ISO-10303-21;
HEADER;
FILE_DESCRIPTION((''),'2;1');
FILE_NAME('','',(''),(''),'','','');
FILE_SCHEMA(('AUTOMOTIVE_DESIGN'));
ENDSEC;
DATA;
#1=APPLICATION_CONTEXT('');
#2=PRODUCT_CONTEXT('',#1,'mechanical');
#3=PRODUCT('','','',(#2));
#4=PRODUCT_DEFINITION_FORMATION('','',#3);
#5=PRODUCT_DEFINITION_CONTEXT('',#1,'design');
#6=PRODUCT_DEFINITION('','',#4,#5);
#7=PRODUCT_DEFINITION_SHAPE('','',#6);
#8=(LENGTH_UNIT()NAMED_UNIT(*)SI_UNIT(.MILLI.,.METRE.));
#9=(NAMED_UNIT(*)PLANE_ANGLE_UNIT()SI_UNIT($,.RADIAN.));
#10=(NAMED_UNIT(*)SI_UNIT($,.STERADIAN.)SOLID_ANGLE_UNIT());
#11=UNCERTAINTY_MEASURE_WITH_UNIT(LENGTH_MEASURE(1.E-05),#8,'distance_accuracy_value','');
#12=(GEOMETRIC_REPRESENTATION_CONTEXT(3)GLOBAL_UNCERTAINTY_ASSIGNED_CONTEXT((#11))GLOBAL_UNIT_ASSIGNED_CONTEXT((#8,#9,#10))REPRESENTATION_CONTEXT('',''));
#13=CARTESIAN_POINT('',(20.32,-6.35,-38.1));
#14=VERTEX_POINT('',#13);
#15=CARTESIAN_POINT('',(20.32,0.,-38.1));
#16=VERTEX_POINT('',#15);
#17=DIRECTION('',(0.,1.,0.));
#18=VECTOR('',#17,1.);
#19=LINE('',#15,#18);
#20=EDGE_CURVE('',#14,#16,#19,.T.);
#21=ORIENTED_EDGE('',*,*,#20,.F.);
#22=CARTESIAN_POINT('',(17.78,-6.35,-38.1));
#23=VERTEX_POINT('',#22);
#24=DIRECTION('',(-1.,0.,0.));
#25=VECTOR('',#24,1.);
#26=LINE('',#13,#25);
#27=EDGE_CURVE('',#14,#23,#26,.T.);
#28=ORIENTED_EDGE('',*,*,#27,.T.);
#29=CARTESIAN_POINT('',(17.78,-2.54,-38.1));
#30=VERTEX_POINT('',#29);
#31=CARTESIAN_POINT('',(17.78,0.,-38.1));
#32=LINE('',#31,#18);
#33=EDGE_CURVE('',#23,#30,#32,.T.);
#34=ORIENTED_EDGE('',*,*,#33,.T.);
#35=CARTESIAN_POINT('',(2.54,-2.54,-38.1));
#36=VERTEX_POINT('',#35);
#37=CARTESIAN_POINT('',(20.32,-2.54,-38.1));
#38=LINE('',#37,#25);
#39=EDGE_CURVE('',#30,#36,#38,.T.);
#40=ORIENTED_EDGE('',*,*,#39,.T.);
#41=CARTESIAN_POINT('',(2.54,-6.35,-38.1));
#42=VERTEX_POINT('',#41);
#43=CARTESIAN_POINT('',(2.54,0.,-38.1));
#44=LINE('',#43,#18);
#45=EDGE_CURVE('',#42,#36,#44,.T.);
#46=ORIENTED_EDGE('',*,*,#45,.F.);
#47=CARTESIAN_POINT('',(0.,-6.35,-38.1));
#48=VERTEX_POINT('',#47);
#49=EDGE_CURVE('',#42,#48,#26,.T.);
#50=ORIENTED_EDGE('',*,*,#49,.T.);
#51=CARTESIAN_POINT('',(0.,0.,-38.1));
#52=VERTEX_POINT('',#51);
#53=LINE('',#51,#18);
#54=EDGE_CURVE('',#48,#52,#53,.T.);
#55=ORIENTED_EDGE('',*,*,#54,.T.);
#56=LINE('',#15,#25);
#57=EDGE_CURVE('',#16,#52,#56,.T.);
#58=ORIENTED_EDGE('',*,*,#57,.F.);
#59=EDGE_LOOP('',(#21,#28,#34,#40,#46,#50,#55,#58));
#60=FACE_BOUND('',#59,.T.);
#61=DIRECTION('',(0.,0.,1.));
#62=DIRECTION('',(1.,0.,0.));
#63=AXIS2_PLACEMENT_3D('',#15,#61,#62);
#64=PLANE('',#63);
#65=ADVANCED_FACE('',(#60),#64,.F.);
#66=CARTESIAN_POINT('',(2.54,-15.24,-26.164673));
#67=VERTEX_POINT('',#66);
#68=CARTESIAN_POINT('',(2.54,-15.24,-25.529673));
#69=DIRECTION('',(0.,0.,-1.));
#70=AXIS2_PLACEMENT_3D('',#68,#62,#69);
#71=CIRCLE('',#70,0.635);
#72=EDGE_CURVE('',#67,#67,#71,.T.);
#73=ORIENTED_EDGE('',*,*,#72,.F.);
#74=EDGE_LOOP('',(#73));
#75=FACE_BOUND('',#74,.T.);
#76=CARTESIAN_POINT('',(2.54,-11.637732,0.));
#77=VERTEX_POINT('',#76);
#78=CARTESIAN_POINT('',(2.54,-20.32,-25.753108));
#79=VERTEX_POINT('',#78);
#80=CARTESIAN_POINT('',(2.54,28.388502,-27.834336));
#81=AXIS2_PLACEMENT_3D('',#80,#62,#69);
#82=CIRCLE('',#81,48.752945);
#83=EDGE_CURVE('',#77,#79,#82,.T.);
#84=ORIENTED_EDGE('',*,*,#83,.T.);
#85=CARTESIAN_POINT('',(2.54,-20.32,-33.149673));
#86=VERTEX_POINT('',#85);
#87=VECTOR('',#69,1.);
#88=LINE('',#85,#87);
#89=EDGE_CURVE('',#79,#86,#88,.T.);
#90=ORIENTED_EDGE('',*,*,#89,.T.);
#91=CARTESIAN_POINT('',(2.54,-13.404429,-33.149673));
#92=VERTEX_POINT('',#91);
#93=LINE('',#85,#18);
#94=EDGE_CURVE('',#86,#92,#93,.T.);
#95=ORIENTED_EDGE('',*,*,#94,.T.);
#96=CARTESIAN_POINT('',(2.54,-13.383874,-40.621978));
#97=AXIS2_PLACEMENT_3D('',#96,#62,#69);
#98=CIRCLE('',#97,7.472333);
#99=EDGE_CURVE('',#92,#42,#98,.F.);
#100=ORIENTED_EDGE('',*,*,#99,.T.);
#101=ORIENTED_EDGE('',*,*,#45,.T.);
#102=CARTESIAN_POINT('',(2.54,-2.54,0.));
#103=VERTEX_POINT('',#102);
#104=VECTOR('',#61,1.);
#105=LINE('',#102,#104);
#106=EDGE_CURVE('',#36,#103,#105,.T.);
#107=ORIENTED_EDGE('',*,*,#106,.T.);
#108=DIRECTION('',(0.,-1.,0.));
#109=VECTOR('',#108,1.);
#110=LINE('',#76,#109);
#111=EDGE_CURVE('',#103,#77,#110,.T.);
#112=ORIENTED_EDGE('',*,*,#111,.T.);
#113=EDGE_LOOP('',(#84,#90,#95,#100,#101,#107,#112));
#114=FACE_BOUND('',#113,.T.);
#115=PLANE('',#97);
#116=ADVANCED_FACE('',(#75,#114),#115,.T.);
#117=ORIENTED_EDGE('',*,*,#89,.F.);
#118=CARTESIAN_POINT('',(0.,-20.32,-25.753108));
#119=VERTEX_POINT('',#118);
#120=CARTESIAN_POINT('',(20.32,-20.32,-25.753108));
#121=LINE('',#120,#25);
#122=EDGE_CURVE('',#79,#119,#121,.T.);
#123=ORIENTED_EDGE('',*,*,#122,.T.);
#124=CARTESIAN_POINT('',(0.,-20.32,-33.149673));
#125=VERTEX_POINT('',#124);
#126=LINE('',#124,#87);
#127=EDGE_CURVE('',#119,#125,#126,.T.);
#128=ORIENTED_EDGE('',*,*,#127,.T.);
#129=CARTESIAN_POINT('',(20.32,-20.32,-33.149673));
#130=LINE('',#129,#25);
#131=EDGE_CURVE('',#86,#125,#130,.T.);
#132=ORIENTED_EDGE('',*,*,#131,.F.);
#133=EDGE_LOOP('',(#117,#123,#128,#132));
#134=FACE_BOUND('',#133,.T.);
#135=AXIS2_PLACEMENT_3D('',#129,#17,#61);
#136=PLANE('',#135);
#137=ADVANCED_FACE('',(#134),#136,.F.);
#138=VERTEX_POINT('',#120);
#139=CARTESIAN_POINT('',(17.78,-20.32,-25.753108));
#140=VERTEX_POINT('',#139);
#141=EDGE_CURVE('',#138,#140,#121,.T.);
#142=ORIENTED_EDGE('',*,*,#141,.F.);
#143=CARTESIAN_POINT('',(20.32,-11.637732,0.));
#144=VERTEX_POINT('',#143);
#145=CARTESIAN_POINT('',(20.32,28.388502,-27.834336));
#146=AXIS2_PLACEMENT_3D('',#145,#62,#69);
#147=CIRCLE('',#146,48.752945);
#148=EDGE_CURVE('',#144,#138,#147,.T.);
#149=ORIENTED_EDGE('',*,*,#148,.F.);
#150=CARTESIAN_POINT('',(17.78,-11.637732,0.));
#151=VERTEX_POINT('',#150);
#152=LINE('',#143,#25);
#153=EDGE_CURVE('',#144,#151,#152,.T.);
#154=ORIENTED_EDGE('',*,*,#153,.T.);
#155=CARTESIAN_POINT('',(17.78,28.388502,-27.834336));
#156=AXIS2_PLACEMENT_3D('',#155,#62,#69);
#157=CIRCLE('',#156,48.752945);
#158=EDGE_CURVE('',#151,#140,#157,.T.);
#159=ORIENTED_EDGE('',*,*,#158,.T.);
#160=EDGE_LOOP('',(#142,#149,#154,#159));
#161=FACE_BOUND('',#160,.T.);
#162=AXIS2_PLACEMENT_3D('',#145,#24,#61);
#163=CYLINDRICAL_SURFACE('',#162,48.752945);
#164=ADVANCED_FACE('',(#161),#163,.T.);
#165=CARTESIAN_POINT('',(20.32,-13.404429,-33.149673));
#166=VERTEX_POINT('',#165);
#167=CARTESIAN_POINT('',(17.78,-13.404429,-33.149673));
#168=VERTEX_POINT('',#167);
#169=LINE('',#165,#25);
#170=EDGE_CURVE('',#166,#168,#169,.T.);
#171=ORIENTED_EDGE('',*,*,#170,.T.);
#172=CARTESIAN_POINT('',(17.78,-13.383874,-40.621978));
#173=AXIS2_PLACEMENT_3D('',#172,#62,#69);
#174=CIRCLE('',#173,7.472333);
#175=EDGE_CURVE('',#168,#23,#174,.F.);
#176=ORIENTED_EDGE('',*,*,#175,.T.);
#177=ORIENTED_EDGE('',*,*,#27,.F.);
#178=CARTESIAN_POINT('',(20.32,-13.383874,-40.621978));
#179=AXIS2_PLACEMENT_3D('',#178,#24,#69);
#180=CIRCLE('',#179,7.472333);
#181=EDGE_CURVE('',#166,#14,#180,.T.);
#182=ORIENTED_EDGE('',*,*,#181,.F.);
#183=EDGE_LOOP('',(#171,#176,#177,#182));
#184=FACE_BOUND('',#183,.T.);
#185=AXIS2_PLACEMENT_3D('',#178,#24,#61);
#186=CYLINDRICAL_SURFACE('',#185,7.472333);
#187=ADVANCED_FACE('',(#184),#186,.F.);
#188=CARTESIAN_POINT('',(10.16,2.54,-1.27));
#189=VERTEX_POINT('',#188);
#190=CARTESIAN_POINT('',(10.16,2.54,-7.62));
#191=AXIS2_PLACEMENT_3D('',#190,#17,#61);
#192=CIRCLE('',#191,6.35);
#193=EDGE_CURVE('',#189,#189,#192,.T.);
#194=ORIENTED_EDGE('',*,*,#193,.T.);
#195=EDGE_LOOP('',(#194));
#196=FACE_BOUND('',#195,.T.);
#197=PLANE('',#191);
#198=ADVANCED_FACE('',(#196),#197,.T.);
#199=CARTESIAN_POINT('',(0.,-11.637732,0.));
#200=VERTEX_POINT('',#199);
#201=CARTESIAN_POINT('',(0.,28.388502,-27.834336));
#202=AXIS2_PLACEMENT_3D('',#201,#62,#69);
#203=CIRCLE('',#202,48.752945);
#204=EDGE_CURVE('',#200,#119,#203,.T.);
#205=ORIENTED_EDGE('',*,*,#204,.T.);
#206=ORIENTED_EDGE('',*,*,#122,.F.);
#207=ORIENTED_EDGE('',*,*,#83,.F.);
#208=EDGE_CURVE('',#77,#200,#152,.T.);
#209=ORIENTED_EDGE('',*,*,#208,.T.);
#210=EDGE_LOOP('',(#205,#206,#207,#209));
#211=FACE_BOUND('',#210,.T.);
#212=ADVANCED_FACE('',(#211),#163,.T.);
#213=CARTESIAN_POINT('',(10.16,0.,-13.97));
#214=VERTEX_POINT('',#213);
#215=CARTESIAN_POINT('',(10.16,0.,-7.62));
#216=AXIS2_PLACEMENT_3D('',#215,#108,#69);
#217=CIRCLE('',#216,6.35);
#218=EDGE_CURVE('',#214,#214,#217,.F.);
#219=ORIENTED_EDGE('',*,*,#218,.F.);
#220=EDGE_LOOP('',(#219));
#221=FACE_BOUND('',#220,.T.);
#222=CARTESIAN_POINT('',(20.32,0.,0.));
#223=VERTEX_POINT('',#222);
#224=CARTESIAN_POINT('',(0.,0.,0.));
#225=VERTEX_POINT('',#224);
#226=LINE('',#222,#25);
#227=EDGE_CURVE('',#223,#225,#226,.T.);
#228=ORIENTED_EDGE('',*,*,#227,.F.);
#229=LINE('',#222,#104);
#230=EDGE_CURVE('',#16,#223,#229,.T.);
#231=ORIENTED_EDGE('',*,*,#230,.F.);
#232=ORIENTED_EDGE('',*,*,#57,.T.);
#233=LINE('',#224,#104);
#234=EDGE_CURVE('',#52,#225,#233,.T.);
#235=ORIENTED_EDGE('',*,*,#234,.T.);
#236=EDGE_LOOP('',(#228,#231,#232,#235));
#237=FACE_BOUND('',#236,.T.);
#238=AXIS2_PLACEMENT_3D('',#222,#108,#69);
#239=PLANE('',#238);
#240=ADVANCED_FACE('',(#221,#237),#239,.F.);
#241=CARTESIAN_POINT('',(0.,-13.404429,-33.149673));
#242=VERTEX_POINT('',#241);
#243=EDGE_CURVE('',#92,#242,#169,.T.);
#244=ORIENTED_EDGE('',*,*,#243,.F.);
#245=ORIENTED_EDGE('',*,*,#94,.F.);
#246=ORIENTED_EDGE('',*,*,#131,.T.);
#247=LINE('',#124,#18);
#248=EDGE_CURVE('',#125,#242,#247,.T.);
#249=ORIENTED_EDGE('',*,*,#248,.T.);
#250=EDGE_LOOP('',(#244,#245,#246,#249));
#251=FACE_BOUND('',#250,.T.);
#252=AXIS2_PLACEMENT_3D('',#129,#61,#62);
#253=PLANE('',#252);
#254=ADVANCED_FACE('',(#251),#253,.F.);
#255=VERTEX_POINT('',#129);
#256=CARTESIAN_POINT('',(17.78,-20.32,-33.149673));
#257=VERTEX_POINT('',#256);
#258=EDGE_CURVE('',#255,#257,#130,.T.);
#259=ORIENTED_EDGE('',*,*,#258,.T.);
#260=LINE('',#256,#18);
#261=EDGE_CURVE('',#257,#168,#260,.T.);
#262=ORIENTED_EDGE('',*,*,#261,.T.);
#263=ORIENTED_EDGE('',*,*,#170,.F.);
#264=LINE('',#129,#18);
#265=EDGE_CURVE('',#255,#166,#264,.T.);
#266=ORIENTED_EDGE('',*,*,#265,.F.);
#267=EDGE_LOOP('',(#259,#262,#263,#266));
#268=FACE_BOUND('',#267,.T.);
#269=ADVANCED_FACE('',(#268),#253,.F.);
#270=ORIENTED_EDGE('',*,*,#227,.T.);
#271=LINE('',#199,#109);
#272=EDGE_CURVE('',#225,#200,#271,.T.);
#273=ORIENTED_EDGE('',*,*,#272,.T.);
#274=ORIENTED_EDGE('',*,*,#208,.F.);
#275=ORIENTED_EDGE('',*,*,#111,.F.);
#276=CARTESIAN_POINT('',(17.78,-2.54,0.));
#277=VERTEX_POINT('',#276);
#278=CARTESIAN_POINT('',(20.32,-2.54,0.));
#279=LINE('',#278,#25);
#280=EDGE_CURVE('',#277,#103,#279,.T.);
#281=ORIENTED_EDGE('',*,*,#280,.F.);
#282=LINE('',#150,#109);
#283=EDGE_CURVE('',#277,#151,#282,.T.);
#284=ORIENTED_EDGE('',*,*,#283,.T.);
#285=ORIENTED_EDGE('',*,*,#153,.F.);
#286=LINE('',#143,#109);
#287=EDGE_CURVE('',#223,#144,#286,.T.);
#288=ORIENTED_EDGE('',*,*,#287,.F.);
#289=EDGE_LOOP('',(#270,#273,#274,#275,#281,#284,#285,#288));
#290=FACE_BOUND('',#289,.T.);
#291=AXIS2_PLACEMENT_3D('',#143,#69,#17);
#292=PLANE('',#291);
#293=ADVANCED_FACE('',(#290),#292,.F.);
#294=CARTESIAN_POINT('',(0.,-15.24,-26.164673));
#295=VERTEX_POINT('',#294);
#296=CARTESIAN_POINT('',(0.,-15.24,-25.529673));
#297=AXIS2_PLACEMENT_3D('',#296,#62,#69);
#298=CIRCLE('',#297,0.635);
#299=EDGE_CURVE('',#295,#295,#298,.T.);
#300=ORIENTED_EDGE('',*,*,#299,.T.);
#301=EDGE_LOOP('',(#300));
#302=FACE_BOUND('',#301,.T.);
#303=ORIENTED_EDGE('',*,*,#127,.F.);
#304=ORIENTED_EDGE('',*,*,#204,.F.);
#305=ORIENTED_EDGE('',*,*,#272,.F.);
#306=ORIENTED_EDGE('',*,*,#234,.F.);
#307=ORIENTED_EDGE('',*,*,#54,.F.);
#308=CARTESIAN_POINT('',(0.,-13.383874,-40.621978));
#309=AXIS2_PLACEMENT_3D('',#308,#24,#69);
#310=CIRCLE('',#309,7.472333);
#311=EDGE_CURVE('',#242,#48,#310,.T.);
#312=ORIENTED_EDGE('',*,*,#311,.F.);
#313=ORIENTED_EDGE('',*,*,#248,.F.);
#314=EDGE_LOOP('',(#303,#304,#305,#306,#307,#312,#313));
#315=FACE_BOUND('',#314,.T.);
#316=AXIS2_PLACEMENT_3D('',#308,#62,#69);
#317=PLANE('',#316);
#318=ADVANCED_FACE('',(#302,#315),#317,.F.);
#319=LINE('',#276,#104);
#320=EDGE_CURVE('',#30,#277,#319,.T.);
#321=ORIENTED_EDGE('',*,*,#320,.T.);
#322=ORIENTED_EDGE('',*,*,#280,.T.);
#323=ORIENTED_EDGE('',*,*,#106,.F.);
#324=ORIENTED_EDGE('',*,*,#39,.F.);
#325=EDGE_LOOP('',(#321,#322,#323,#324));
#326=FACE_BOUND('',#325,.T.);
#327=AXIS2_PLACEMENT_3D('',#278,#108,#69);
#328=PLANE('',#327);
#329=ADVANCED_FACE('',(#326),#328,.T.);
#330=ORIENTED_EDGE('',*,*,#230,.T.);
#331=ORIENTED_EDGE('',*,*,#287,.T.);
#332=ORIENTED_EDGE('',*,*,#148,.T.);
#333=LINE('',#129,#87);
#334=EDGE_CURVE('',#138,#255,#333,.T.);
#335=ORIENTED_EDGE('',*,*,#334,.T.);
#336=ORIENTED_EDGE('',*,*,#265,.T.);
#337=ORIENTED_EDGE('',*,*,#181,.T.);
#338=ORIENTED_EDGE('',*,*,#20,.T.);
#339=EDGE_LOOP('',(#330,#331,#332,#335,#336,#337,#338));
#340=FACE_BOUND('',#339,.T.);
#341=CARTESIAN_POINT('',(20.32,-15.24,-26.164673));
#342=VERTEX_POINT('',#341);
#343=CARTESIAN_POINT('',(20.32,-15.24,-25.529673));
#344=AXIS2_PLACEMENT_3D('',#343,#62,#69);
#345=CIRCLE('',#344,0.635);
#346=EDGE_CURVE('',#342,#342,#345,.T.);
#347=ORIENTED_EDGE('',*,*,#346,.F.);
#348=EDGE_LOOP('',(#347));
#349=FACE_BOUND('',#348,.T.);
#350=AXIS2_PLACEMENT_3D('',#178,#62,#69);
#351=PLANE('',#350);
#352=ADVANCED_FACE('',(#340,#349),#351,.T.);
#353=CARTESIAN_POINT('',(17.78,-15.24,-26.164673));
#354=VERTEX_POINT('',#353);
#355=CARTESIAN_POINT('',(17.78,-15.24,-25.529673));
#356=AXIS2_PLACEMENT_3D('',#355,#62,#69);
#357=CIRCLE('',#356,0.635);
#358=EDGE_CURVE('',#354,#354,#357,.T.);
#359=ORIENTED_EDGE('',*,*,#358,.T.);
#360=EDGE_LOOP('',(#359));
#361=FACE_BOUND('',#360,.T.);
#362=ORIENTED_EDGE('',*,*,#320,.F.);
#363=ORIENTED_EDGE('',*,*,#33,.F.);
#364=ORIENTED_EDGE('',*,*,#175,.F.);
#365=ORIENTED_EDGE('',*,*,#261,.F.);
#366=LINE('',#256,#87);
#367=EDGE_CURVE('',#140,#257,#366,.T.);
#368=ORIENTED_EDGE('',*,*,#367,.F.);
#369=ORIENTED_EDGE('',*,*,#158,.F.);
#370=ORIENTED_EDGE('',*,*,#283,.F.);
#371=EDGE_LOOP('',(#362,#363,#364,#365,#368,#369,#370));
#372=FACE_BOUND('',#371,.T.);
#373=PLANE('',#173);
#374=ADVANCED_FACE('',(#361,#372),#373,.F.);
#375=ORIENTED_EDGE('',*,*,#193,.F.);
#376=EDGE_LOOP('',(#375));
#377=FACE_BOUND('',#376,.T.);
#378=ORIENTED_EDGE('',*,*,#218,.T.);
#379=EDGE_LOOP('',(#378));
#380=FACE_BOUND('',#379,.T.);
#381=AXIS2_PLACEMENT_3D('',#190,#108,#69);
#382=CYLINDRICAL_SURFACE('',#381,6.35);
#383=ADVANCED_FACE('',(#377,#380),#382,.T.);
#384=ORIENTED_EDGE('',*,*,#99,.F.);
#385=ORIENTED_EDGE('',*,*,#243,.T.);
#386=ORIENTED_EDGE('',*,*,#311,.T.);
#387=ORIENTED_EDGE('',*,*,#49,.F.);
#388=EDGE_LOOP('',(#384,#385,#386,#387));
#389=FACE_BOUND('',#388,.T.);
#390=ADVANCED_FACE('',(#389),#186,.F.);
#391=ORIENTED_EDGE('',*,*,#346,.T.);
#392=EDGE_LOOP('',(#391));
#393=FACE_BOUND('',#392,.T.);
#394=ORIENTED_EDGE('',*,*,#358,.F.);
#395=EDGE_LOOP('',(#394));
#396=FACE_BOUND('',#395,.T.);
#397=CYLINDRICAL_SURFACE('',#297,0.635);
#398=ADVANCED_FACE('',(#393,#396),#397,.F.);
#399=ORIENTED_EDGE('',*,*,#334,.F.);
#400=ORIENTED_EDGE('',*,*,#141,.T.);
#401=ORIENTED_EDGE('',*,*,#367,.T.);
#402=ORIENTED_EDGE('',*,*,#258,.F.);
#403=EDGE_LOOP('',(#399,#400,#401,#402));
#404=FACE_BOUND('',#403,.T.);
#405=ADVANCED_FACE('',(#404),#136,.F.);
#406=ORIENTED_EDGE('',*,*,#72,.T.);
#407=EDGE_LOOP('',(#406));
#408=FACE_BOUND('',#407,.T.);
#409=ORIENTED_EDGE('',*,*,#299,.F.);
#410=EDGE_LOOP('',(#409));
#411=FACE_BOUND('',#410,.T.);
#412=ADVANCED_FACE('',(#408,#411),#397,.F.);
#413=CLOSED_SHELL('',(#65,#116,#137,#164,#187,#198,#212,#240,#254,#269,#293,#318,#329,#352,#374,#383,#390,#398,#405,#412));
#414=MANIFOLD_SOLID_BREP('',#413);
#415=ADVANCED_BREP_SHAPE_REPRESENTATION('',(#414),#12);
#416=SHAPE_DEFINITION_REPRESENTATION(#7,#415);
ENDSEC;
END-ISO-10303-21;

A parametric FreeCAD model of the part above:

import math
import FreeCAD as App
import Part
import Sketcher
Q = App.Units.Quantity


def faces_at(feature, points):
    """Names of the faces that lie closest to the given points."""
    faces = feature.Shape.Faces
    near = lambda p: min(range(len(faces)), key=lambda i: faces[i].distToShape(Part.Vertex(*p))[0])
    return sorted({f"Face{near(p) + 1}" for p in points})

doc = App.newDocument("Part")
body = doc.addObject("PartDesign::Body", "Body")

sketch1 = body.newObject("Sketcher::SketchObject", "Sketch")
sketch1.AttachmentSupport = (doc.getObject("YZ_Plane"), [""])
sketch1.MapMode = "FlatFace"
sketch1.addGeometry(Part.LineSegment(App.Vector(0, -38, 0), App.Vector(0, 0, 0)), False)
sketch1.addGeometry(Part.LineSegment(App.Vector(0, 0, 0), App.Vector(-12, 0, 0)), False)
sketch1.addGeometry(Part.ArcOfCircle(Part.Circle(App.Vector(28, -28, 0), App.Vector(0, 0, 1), 49), math.radians(145), math.radians(178)), False)
sketch1.addGeometry(Part.LineSegment(App.Vector(-20, -26, 0), App.Vector(-20, -33, 0)), False)
sketch1.addGeometry(Part.LineSegment(App.Vector(-20, -33, 0), App.Vector(-13, -33, 0)), False)
sketch1.addGeometry(Part.ArcOfCircle(Part.Circle(App.Vector(-13, -41, 0), App.Vector(0, 0, 1), 7), math.radians(20), math.radians(90)), False)
sketch1.addGeometry(Part.LineSegment(App.Vector(-6, -38, 0), App.Vector(0, -38, 0)), False)
sketch1.addConstraint(Sketcher.Constraint("Coincident", 0, 2, 1, 1))
sketch1.addConstraint(Sketcher.Constraint("Coincident", 1, 2, 2, 1))
sketch1.addConstraint(Sketcher.Constraint("Coincident", 2, 2, 3, 1))
sketch1.addConstraint(Sketcher.Constraint("Coincident", 3, 2, 4, 1))
sketch1.addConstraint(Sketcher.Constraint("Coincident", 4, 2, 5, 2))
sketch1.addConstraint(Sketcher.Constraint("Coincident", 5, 1, 6, 1))
sketch1.addConstraint(Sketcher.Constraint("Coincident", 6, 2, 0, 1))
sketch1.addConstraint(Sketcher.Constraint("Vertical", 0))
sketch1.addConstraint(Sketcher.Constraint("Horizontal", 1))
sketch1.addConstraint(Sketcher.Constraint("Vertical", 3))
sketch1.addConstraint(Sketcher.Constraint("Horizontal", 4))
sketch1.addConstraint(Sketcher.Constraint("Horizontal", 6))
sketch1.addConstraint(Sketcher.Constraint("Coincident", 0, 2, -1, 1))
sketch1.addConstraint(Sketcher.Constraint("DistanceY", 0, 1, 0, 2, Q("1.5 in")))
sketch1.addConstraint(Sketcher.Constraint("DistanceX", 6, 1, 6, 2, Q("0.25 in")))
sketch1.addConstraint(Sketcher.Constraint("DistanceX", 2, 2, -1, 1, Q("0.8 in")))
sketch1.addConstraint(Sketcher.Constraint("Radius", 2, 48.752945))
sketch1.addConstraint(Sketcher.Constraint("Radius", 5, 7.472333))
sketch1.addConstraint(Sketcher.Constraint("DistanceX", 4, 1, 4, 2, 6.915571))
sketch1.addConstraint(Sketcher.Constraint("DistanceX", -1, 1, 2, 3, 28.388502))
sketch1.addConstraint(Sketcher.Constraint("DistanceX", 1, 2, 1, 1, 11.637732))
sketch1.addConstraint(Sketcher.Constraint("DistanceY", 3, 2, 3, 1, 7.396565))
pad1 = body.newObject("PartDesign::Pad", "Pad")
pad1.Profile = sketch1
pad1.Length = Q("0.8 in")
doc.recompute()

thickness = body.newObject("PartDesign::Thickness", "Thickness")
thickness.Base = (pad1, faces_at(pad1, [
    (10.16, -3.175, -38.1),
    (10.16, -9.092, -34.505),
    (10.16, -16.862, -33.15),
    (10.16, -20.32, -29.451),
    (10.16, -17.81, -12.259),
    (10.16, -5.819, 0),
]))
thickness.Value = Q("0.1 in")
thickness.Reversed = True
thickness.Join = "Intersection"

sketch2 = body.newObject("Sketcher::SketchObject", "Sketch001")
sketch2.AttachmentSupport = (doc.getObject("XZ_Plane"), [""])
sketch2.MapMode = "FlatFace"
sketch2.addGeometry(Part.Circle(App.Vector(10, -8, 0), App.Vector(0, 0, 1), 6), False)
sketch2.addConstraint(Sketcher.Constraint("Diameter", 0, Q("0.5 in")))
sketch2.addConstraint(Sketcher.Constraint("DistanceX", -1, 1, 0, 3, Q("0.4 in")))
sketch2.addConstraint(Sketcher.Constraint("DistanceY", 0, 3, -1, 1, Q("0.3 in")))
pad2 = body.newObject("PartDesign::Pad", "Pad001")
pad2.Profile = sketch2
pad2.Length = Q("0.1 in")
pad2.Reversed = True

sketch3 = body.newObject("Sketcher::SketchObject", "Sketch002")
sketch3.AttachmentSupport = (doc.getObject("YZ_Plane"), [""])
sketch3.MapMode = "FlatFace"
sketch3.AttachmentOffset = App.Placement(App.Vector(0, 0, 0.8 * 25.4), App.Rotation())
sketch3.addGeometry(Part.Circle(App.Vector(-15.2, -25.5, 0), App.Vector(0, 0, 1), 0.6), False)
sketch3.addConstraint(Sketcher.Constraint("Diameter", 0, Q("0.05 in")))
sketch3.addConstraint(Sketcher.Constraint("DistanceX", 0, 3, -1, 1, Q("0.6 in")))
sketch3.addConstraint(Sketcher.Constraint("DistanceY", 0, 3, -1, 1, 25.529673))
pocket1 = body.newObject("PartDesign::Pocket", "Pocket")
pocket1.Profile = sketch3
pocket1.Type = "ThroughAll"
pocket1.Midplane = True

doc.recompute()
